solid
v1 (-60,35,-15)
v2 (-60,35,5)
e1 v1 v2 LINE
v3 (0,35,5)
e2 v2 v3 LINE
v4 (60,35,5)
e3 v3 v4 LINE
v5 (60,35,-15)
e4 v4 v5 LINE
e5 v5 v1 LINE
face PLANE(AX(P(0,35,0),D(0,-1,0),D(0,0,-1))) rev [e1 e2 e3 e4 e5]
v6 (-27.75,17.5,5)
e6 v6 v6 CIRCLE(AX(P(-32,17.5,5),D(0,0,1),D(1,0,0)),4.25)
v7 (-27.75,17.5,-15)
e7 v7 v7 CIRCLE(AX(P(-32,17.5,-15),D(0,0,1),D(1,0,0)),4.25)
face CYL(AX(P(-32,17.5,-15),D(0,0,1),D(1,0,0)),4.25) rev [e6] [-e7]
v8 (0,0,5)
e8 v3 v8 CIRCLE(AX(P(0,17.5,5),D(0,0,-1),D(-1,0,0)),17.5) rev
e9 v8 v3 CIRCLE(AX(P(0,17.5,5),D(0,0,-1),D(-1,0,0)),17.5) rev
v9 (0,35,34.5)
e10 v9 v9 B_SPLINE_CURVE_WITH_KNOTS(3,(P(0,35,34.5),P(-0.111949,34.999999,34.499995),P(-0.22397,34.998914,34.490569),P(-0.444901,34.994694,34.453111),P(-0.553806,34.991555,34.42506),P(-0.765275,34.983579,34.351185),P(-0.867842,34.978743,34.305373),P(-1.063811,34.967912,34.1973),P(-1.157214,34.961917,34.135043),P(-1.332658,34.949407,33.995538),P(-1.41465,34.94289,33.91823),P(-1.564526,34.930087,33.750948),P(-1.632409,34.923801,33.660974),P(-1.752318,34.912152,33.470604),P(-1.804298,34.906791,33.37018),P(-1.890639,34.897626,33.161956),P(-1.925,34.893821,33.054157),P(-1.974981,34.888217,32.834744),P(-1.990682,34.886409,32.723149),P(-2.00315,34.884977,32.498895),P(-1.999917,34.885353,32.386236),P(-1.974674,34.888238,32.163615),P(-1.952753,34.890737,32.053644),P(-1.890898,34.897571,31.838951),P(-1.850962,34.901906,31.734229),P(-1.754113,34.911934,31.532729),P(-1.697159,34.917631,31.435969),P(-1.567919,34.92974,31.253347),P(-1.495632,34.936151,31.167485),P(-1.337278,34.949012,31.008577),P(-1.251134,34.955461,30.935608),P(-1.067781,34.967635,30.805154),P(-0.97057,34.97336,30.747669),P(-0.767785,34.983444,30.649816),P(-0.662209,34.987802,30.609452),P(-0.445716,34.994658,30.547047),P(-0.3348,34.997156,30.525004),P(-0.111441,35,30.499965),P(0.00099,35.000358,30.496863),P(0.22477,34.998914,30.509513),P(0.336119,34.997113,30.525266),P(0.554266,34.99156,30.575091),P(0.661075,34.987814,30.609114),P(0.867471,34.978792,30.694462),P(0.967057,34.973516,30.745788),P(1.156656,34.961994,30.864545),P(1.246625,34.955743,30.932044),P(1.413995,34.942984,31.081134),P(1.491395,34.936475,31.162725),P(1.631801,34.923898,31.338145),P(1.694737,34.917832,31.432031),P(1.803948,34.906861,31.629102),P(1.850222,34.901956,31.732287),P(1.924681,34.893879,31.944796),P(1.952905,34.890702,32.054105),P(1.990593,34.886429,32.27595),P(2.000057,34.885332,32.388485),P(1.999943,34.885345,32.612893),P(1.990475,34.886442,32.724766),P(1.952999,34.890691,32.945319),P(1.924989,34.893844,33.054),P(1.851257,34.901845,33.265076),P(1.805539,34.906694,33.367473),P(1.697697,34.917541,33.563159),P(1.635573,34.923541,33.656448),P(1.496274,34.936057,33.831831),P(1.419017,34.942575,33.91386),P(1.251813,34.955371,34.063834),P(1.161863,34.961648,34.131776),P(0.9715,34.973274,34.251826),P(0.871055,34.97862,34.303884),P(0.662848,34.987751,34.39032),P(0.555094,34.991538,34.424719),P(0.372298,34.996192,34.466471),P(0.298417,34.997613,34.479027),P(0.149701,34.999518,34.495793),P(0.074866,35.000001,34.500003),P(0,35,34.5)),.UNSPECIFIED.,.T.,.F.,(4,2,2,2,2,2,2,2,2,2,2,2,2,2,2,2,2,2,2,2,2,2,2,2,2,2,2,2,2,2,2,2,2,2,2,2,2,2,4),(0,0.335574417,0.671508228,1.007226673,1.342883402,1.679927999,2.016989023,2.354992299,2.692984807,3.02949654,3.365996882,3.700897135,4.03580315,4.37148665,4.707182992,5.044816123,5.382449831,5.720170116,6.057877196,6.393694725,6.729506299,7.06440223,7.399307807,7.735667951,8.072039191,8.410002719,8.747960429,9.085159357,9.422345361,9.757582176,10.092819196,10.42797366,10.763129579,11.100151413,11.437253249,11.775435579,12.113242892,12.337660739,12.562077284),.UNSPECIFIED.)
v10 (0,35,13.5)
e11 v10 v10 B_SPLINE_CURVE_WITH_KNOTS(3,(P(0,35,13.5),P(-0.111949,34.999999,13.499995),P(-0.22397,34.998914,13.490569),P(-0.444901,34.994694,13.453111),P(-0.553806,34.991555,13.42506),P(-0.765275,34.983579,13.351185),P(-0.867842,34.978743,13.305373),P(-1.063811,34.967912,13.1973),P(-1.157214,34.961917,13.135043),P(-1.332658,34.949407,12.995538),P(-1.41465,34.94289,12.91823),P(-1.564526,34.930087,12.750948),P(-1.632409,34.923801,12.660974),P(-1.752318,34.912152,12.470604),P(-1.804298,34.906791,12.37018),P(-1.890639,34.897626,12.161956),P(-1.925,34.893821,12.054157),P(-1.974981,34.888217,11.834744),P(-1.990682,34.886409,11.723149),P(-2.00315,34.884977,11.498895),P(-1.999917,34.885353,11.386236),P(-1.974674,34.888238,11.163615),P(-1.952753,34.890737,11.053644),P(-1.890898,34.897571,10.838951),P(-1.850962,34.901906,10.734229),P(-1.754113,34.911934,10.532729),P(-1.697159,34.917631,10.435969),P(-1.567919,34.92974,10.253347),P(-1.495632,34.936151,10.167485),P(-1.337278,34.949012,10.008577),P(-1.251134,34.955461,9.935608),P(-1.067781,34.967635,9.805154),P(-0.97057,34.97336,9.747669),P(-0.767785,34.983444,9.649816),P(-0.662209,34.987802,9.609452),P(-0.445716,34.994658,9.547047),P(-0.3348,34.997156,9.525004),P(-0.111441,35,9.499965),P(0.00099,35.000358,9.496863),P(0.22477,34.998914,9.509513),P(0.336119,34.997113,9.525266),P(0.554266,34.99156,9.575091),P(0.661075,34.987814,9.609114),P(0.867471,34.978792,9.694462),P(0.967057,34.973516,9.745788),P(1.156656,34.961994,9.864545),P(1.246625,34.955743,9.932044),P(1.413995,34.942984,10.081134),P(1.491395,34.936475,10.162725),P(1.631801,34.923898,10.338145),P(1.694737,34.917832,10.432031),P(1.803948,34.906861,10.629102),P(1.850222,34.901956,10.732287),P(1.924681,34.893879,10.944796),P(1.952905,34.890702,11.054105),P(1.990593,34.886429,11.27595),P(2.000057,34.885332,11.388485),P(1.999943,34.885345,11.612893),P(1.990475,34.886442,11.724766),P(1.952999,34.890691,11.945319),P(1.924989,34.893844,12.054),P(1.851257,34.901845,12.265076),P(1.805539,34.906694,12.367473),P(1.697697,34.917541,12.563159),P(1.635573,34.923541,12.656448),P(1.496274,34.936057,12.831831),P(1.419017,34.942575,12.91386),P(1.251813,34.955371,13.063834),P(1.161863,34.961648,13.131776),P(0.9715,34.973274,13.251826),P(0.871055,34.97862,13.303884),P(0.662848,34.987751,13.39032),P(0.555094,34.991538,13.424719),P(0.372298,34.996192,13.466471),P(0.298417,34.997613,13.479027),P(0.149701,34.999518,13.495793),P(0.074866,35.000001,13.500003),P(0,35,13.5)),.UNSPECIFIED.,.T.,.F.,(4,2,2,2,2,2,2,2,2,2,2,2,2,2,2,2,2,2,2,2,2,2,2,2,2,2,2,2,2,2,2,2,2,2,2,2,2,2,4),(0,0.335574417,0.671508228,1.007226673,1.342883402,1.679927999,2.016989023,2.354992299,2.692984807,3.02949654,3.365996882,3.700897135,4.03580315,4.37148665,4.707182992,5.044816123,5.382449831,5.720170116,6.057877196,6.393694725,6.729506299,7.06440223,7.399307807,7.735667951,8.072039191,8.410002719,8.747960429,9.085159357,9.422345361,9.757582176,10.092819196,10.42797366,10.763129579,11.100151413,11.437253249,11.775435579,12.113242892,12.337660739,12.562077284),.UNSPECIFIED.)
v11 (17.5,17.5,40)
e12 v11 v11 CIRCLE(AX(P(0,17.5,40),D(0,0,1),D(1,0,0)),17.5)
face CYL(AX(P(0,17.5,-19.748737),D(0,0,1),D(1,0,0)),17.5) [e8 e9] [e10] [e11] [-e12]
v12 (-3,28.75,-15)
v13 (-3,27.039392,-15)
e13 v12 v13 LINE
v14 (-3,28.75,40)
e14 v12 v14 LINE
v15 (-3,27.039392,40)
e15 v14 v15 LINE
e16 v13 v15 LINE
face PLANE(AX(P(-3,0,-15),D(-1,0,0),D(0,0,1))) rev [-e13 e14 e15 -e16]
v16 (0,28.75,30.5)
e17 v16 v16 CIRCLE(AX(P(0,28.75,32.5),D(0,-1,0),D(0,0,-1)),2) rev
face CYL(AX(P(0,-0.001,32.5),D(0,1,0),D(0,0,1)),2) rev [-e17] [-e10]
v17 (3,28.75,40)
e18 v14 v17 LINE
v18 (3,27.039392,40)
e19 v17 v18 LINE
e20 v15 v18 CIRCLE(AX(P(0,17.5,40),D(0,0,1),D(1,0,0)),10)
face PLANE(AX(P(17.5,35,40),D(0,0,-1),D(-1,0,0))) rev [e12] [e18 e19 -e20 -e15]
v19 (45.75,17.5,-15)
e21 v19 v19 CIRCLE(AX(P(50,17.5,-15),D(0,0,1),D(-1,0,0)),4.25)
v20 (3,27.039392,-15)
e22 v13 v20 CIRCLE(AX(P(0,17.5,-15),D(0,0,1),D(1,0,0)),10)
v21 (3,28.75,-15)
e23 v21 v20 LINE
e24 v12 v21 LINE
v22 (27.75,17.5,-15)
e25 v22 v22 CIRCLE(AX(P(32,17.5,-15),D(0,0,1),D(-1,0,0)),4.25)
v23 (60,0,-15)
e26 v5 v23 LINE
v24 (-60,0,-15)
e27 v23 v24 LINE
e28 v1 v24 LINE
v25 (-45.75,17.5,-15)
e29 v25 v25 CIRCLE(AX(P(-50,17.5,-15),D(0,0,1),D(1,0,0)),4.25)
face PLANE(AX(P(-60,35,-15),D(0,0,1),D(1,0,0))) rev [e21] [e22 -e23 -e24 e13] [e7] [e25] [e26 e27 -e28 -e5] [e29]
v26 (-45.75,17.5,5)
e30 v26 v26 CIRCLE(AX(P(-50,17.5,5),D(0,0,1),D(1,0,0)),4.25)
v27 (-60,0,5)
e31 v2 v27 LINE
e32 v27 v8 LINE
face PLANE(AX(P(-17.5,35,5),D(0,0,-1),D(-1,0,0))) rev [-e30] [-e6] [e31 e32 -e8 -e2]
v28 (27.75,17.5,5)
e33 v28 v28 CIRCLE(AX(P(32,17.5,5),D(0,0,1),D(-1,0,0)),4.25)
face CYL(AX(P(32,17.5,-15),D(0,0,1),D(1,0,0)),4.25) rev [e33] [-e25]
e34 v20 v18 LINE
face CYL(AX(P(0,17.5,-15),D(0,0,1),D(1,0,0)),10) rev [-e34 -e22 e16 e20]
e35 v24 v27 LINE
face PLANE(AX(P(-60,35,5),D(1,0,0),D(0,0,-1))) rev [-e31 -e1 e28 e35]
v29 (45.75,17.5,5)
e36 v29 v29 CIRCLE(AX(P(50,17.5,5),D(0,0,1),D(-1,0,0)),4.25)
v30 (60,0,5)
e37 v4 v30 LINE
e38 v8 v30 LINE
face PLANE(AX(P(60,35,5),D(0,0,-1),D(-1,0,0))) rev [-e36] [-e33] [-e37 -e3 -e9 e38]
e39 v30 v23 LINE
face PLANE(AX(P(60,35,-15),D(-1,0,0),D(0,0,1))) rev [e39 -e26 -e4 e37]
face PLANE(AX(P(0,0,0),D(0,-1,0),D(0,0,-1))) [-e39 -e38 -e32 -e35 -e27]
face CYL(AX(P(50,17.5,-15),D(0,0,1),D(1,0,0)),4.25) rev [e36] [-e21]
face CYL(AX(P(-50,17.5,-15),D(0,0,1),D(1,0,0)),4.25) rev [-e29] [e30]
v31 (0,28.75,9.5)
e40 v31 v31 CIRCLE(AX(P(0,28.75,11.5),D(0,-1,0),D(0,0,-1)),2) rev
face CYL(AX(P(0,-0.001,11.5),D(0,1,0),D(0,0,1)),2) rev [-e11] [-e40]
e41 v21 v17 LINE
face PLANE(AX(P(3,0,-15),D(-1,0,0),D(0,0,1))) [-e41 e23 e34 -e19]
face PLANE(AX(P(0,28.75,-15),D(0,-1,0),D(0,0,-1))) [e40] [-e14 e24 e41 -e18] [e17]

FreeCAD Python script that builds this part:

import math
import FreeCAD as App
import Part
import Sketcher

V = App.Vector


def add_polygon(sketch, points):
    """Adds a closed chain of lines whose ends are joined by coincident constraints."""
    first, n = sketch.GeometryCount, len(points)
    for a, b in zip(points, points[1:] + points[:1]):
        sketch.addGeometry(Part.LineSegment(App.Vector(*a, 0), App.Vector(*b, 0)), False)
    for i in range(n):
        sketch.addConstraint(Sketcher.Constraint("Coincident", first + i, 2, first + (i + 1) % n, 1))

doc = App.newDocument("Part")
body = doc.addObject("PartDesign::Body", "Body")

# Sketch on XZ plane
sketch1 = body.newObject("Sketcher::SketchObject", "Sketch")
sketch1.AttachmentSupport = (doc.getObject("XZ_Plane"), [""])
sketch1.MapMode = "FlatFace"
add_polygon(sketch1, [(60, -15), (-60, -15), (-60, 5), (-18, 5), (-18, 40), (18, 40), (18, 5), (60, 5)])  # lines 0-7
sketch1.addConstraint(Sketcher.Constraint("Horizontal", 0))
sketch1.addConstraint(Sketcher.Constraint("Vertical", 1))
sketch1.addConstraint(Sketcher.Constraint("Horizontal", 2))
sketch1.addConstraint(Sketcher.Constraint("Vertical", 3))
sketch1.addConstraint(Sketcher.Constraint("Horizontal", 4))
sketch1.addConstraint(Sketcher.Constraint("Vertical", 5))
sketch1.addConstraint(Sketcher.Constraint("Horizontal", 6))
sketch1.addConstraint(Sketcher.Constraint("Vertical", 7))
sketch1.addConstraint(Sketcher.Constraint("Symmetric", 2, 2, 5, 2, -2))
sketch1.addConstraint(Sketcher.Constraint("Equal", 2, 6))
sketch1.addConstraint(Sketcher.Constraint("Equal", 4, 3))
sketch1.addConstraint(Sketcher.Constraint("DistanceX", 0, 2, 0, 1, 120.0))
sketch1.addConstraint(Sketcher.Constraint("DistanceX", 4, 1, 4, 2, 35.0))
sketch1.addConstraint(Sketcher.Constraint("DistanceY", 1, 1, 1, 2, 20.0))
sketch1.addConstraint(Sketcher.Constraint("DistanceY", 0, 2, -1, 1, 15.0))
pad1 = body.newObject("PartDesign::Pad", "Pad")
pad1.Profile = sketch1
pad1.Length = 35
pad1.Reversed = True

# Sketch on XY plane
sketch2 = body.newObject("Sketcher::SketchObject", "Sketch001")
sketch2.AttachmentSupport = (doc.getObject("XY_Plane"), [""])
sketch2.MapMode = "FlatFace"
sketch2.AttachmentOffset = App.Placement(V(0, 0, 40), App.Rotation())
sketch2.addGeometry(Part.LineSegment(V(-3, 28.8, 0), V(-3, 27, 0)), False)
sketch2.addGeometry(Part.ArcOfCircle(Part.Circle(V(0, 17.5, 0), V(0, 0, 1), 10), math.radians(107), math.radians(360)), False)
sketch2.addGeometry(Part.ArcOfCircle(Part.Circle(V(0, 17.5, 0), V(0, 0, 1), 10), math.radians(0), math.radians(73)), False)
sketch2.addGeometry(Part.LineSegment(V(3, 27, 0), V(3, 28.8, 0)), False)
sketch2.addGeometry(Part.LineSegment(V(3, 28.8, 0), V(-3, 28.8, 0)), False)
sketch2.addConstraint(Sketcher.Constraint("Coincident", 0, 2, 1, 1))
sketch2.addConstraint(Sketcher.Constraint("Tangent", 1, 2, 2, 1))
sketch2.addConstraint(Sketcher.Constraint("Coincident", 2, 2, 3, 1))
sketch2.addConstraint(Sketcher.Constraint("Coincident", 3, 2, 4, 1))
sketch2.addConstraint(Sketcher.Constraint("Coincident", 4, 2, 0, 1))
sketch2.addConstraint(Sketcher.Constraint("Vertical", 0))
sketch2.addConstraint(Sketcher.Constraint("Vertical", 3))
sketch2.addConstraint(Sketcher.Constraint("Horizontal", 4))
sketch2.addConstraint(Sketcher.Constraint("Equal", 1, 2))
sketch2.addConstraint(Sketcher.Constraint("Symmetric", 0, 2, 2, 2, -2))
sketch2.addConstraint(Sketcher.Constraint("Horizontal", 2, 3, 1, 2))
sketch2.addConstraint(Sketcher.Constraint("Radius", 1, 10.0))
sketch2.addConstraint(Sketcher.Constraint("DistanceX", 4, 2, 4, 1, 6.0))
sketch2.addConstraint(Sketcher.Constraint("DistanceY", -1, 1, 1, 3, 17.5))
sketch2.addConstraint(Sketcher.Constraint("DistanceY", -1, 1, 3, 2, 28.75))
pocket1 = body.newObject("PartDesign::Pocket", "Pocket")
pocket1.Profile = sketch2
pocket1.Type = "ThroughAll"

# Sketch on XY plane
sketch3 = body.newObject("Sketcher::SketchObject", "Sketch002")
sketch3.AttachmentSupport = (doc.getObject("XY_Plane"), [""])
sketch3.MapMode = "FlatFace"
sketch3.AttachmentOffset = App.Placement(V(0, 0, 5), App.Rotation())
sketch3.addGeometry(Part.Circle(V(-50, 17.5, 0), V(0, 0, 1), 4.2), False)
sketch3.addGeometry(Part.Circle(V(-32, 17.5, 0), V(0, 0, 1), 4.2), False)
sketch3.addGeometry(Part.Circle(V(32, 17.5, 0), V(0, 0, 1), 4.2), False)
sketch3.addGeometry(Part.Circle(V(50, 17.5, 0), V(0, 0, 1), 4.2), False)
sketch3.addConstraint(Sketcher.Constraint("Equal", 0, 1))
sketch3.addConstraint(Sketcher.Constraint("Equal", 1, 2))
sketch3.addConstraint(Sketcher.Constraint("Equal", 2, 3))
sketch3.addConstraint(Sketcher.Constraint("Symmetric", 1, 3, 2, 3, -2))
sketch3.addConstraint(Sketcher.Constraint("Symmetric", 0, 3, 3, 3, -2))
sketch3.addConstraint(Sketcher.Constraint("Horizontal", 0, 3, 1, 3))
sketch3.addConstraint(Sketcher.Constraint("Diameter", 0, 8.5))
sketch3.addConstraint(Sketcher.Constraint("DistanceX", 0, 3, -1, 1, 50.0))
sketch3.addConstraint(Sketcher.Constraint("DistanceX", 1, 3, -1, 1, 32.0))
sketch3.addConstraint(Sketcher.Constraint("DistanceY", -1, 1, 0, 3, 17.5))
pocket2 = body.newObject("PartDesign::Pocket", "Pocket001")
pocket2.Profile = sketch3
pocket2.Type = "ThroughAll"

# Sketch on XY plane
sketch4 = body.newObject("Sketcher::SketchObject", "Sketch003")
sketch4.AttachmentSupport = (doc.getObject("XY_Plane"), [""])
sketch4.MapMode = "FlatFace"
sketch4.AttachmentOffset = App.Placement(V(0, 0, 40), App.Rotation())
sketch4.addGeometry(Part.LineSegment(V(0, 35, 0), V(-18, 35, 0)), False)
sketch4.addGeometry(Part.LineSegment(V(-18, 35, 0), V(-18, 18, 0)), False)
sketch4.addGeometry(Part.ArcOfCircle(Part.Circle(V(0, 18, 0), V(0, 0, 1), 17), math.radians(90), math.radians(180)), False)
sketch4.addGeometry(Part.LineSegment(V(18, 35, 0), V(0, 35, 0)), False)
sketch4.addGeometry(Part.ArcOfCircle(Part.Circle(V(0, 18, 0), V(0, 0, 1), 17), math.radians(0), math.radians(90)), False)
sketch4.addGeometry(Part.LineSegment(V(18, 18, 0), V(18, 35, 0)), False)
sketch4.addGeometry(Part.LineSegment(V(18, 0, 0), V(18, 18, 0)), False)
sketch4.addGeometry(Part.ArcOfCircle(Part.Circle(V(0, 18, 0), V(0, 0, 1), 18), math.radians(-90), math.radians(0)), False)
sketch4.addGeometry(Part.LineSegment(V(0, 0, 0), V(18, 0, 0)), False)
sketch4.addGeometry(Part.ArcOfCircle(Part.Circle(V(0, 18, 0), V(0, 0, 1), 18), math.radians(-180), math.radians(-90)), False)
sketch4.addGeometry(Part.LineSegment(V(-18, 18, 0), V(-18, 0, 0)), False)
sketch4.addGeometry(Part.LineSegment(V(-18, 0, 0), V(0, 0, 0)), False)
sketch4.addConstraint(Sketcher.Constraint("Coincident", 0, 2, 1, 1))
sketch4.addConstraint(Sketcher.Constraint("Tangent", 1, 2, 2, 2))
sketch4.addConstraint(Sketcher.Constraint("Tangent", 2, 1, 0, 1))
sketch4.addConstraint(Sketcher.Constraint("Tangent", 3, 2, 4, 2))
sketch4.addConstraint(Sketcher.Constraint("Tangent", 4, 1, 5, 1))
sketch4.addConstraint(Sketcher.Constraint("Coincident", 5, 2, 3, 1))
sketch4.addConstraint(Sketcher.Constraint("Tangent", 6, 2, 7, 2))
sketch4.addConstraint(Sketcher.Constraint("Tangent", 7, 1, 8, 1))
sketch4.addConstraint(Sketcher.Constraint("Coincident", 8, 2, 6, 1))
sketch4.addConstraint(Sketcher.Constraint("Tangent", 9, 1, 10, 1))
sketch4.addConstraint(Sketcher.Constraint("Coincident", 10, 2, 11, 1))
sketch4.addConstraint(Sketcher.Constraint("Tangent", 11, 2, 9, 2))
sketch4.addConstraint(Sketcher.Constraint("Horizontal", 0))
sketch4.addConstraint(Sketcher.Constraint("Vertical", 1))
sketch4.addConstraint(Sketcher.Constraint("Horizontal", 3))
sketch4.addConstraint(Sketcher.Constraint("Vertical", 5))
sketch4.addConstraint(Sketcher.Constraint("Vertical", 6))
sketch4.addConstraint(Sketcher.Constraint("Horizontal", 8))
sketch4.addConstraint(Sketcher.Constraint("Vertical", 10))
sketch4.addConstraint(Sketcher.Constraint("Horizontal", 11))
sketch4.addConstraint(Sketcher.Constraint("Coincident", 7, 1, -1, 1))
sketch4.addConstraint(Sketcher.Constraint("Coincident", 11, 2, -1, 1))
sketch4.addConstraint(Sketcher.Constraint("Coincident", 4, 3, 2, 3))
sketch4.addConstraint(Sketcher.Constraint("Coincident", 7, 3, 2, 3))
sketch4.addConstraint(Sketcher.Constraint("Coincident", 9, 1, 1, 2))
sketch4.addConstraint(Sketcher.Constraint("Equal", 2, 4))
sketch4.addConstraint(Sketcher.Constraint("Radius", 2, 17.5))
pocket3 = body.newObject("PartDesign::Pocket", "Pocket002")
pocket3.Profile = sketch4
pocket3.Length = 35

# Sketch on XZ plane
sketch5 = body.newObject("Sketcher::SketchObject", "Sketch004")
sketch5.AttachmentSupport = (doc.getObject("XZ_Plane"), [""])
sketch5.MapMode = "FlatFace"
sketch5.AttachmentOffset = App.Placement(V(0, 0, -35), App.Rotation())
sketch5.addGeometry(Part.Circle(V(0, 32.5, 0), V(0, 0, 1), 2), False)
sketch5.addConstraint(Sketcher.Constraint("PointOnObject", 0, 3, -2))
sketch5.addConstraint(Sketcher.Constraint("Diameter", 0, 4.0))
sketch5.addConstraint(Sketcher.Constraint("DistanceY", -1, 1, 0, 3, 32.5))
pocket4 = body.newObject("PartDesign::Pocket", "Pocket003")
pocket4.Profile = sketch5
pocket4.Type = "UpToFirst"
pocket4.Reversed = True

# Sketch on XZ plane
sketch6 = body.newObject("Sketcher::SketchObject", "Sketch005")
sketch6.AttachmentSupport = (doc.getObject("XZ_Plane"), [""])
sketch6.MapMode = "FlatFace"
sketch6.AttachmentOffset = App.Placement(V(0, 0, -35), App.Rotation())
sketch6.addGeometry(Part.Circle(V(0, 11.5, 0), V(0, 0, 1), 2), False)
sketch6.addConstraint(Sketcher.Constraint("PointOnObject", 0, 3, -2))
sketch6.addConstraint(Sketcher.Constraint("Diameter", 0, 4.0))
sketch6.addConstraint(Sketcher.Constraint("DistanceY", -1, 1, 0, 3, 11.5))
pocket5 = body.newObject("PartDesign::Pocket", "Pocket004")
pocket5.Profile = sketch6
pocket5.Type = "UpToFirst"
pocket5.Reversed = True

doc.recompute()
